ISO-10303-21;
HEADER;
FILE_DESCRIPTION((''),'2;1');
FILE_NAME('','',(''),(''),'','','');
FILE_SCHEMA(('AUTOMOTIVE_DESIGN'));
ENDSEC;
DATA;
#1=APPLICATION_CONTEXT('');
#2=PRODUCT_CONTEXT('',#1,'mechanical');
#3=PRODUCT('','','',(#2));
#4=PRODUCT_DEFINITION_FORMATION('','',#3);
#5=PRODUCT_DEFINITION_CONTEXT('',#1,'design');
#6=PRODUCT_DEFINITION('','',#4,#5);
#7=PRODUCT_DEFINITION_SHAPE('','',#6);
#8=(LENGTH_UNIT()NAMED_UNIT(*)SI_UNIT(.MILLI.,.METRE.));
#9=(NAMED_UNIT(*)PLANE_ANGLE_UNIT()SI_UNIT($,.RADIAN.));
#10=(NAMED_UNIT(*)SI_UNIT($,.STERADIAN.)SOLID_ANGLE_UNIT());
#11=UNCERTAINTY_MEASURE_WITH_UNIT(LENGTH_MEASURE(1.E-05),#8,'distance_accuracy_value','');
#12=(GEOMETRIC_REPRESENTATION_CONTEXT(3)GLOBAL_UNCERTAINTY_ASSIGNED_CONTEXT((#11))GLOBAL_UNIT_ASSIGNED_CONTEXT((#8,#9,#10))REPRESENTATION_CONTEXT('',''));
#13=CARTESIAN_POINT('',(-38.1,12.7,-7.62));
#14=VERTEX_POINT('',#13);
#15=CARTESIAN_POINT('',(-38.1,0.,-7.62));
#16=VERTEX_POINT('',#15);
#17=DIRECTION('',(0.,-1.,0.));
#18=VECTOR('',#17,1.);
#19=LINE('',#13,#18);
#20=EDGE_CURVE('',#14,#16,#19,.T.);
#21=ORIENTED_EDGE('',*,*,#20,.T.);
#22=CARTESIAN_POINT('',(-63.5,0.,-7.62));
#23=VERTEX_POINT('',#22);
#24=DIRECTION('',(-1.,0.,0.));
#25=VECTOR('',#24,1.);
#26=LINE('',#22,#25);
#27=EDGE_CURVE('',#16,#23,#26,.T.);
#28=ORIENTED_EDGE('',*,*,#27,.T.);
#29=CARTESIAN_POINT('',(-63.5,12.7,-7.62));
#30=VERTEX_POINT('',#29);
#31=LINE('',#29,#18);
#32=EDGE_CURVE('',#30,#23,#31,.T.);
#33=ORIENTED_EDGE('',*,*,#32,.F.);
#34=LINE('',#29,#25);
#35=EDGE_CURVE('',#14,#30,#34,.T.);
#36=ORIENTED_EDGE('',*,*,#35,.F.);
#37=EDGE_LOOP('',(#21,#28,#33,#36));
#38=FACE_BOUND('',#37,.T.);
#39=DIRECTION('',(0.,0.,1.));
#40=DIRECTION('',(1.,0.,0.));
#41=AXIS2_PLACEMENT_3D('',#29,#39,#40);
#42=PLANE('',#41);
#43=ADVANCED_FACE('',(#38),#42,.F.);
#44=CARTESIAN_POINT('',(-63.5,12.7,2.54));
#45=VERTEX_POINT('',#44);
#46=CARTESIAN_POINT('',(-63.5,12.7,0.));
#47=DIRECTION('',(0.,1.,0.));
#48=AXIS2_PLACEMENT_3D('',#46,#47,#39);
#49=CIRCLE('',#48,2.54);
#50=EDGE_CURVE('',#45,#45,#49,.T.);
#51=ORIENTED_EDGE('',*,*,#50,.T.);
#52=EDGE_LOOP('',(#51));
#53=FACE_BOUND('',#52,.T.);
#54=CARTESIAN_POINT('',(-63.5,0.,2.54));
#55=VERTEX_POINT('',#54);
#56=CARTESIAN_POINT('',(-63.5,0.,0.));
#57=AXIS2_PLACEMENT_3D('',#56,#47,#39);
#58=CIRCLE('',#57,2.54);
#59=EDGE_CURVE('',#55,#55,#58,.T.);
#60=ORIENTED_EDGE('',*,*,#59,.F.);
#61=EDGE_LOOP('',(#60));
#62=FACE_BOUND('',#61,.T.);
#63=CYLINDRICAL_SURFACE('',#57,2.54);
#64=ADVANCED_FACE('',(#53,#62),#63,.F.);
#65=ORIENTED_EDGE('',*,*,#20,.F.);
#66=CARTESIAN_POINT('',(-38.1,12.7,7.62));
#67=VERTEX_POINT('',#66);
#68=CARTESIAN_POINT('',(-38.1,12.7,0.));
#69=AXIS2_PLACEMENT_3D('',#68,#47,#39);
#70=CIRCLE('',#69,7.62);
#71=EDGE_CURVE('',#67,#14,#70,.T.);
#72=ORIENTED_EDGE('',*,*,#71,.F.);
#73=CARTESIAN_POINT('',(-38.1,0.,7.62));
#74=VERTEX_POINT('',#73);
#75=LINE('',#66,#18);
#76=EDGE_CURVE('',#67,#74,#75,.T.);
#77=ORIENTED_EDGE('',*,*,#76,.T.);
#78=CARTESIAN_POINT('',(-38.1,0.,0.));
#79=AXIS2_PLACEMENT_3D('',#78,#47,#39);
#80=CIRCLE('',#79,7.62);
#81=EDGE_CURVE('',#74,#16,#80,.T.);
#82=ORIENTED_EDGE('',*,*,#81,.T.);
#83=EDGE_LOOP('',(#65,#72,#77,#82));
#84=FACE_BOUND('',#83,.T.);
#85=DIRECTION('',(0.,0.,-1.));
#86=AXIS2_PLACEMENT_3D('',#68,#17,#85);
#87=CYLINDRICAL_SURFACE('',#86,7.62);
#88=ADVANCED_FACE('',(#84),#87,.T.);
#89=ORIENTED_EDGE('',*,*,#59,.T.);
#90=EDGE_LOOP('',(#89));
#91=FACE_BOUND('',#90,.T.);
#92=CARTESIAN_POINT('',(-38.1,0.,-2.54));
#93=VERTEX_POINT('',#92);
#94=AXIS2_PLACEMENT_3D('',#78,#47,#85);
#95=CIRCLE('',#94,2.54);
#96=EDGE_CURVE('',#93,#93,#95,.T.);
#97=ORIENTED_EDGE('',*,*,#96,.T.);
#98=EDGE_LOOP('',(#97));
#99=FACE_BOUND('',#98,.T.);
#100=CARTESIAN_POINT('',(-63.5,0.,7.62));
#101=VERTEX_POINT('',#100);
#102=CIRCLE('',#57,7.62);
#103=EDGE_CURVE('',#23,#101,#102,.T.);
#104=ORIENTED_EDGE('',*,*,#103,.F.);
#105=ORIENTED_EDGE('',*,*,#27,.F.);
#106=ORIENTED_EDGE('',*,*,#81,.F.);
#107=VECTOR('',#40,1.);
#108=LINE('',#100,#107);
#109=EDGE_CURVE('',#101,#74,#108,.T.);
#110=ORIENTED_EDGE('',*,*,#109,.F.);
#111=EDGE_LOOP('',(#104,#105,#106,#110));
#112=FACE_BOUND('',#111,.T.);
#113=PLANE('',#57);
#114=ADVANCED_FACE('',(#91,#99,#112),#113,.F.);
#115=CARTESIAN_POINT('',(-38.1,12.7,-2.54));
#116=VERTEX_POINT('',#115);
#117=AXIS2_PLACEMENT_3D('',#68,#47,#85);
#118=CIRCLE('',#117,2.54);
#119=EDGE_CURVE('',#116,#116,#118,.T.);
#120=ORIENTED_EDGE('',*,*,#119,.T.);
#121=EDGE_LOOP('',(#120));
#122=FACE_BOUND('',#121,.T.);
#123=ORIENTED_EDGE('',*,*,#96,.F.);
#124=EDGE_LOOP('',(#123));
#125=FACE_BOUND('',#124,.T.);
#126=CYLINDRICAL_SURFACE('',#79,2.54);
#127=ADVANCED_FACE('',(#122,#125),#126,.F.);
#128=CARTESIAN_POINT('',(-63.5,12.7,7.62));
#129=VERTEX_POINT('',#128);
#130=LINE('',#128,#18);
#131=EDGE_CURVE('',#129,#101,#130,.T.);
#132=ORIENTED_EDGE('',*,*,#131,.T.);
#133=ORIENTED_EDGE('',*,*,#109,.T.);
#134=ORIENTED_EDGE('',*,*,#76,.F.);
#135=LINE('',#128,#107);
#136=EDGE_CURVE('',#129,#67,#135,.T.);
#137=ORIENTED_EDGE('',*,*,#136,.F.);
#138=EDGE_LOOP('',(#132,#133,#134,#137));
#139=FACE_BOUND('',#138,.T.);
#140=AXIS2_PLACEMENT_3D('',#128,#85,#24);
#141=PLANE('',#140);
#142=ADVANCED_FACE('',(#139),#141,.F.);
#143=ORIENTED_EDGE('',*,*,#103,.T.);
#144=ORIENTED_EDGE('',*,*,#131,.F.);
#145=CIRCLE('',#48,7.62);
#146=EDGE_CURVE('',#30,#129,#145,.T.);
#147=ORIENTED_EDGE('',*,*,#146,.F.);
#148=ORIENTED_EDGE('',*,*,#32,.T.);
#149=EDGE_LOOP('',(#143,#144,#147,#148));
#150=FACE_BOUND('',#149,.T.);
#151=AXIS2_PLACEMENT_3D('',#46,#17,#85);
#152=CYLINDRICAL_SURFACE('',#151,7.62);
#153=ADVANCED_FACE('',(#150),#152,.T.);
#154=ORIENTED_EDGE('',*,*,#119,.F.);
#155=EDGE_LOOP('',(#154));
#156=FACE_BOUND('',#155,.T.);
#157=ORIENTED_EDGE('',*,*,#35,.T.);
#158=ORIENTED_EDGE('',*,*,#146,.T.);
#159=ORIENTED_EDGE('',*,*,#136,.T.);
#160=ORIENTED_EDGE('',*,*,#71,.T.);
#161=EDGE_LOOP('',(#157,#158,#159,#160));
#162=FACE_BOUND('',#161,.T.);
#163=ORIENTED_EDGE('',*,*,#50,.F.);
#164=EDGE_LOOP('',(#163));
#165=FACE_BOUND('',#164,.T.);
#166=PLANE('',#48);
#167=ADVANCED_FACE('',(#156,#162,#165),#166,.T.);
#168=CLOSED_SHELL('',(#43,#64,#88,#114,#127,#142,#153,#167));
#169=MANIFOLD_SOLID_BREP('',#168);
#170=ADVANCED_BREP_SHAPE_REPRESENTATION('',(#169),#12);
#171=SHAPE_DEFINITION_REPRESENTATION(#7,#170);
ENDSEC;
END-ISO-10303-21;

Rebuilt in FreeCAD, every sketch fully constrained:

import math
import FreeCAD as App
import Part
import Sketcher
Q = App.Units.Quantity

doc = App.newDocument("Part")
body = doc.addObject("PartDesign::Body", "Body")

# Sketch on XZ plane
sketch1 = body.newObject("Sketcher::SketchObject", "Sketch")
sketch1.AttachmentSupport = (doc.getObject("XZ_Plane"), [""])
sketch1.MapMode = "FlatFace"
sketch1.addGeometry([
    Part.LineSegment(App.Vector(-38, -8, 0), App.Vector(-64, -8, 0)),
    Part.ArcOfCircle(Part.Circle(App.Vector(-64, 0, 0), App.Vector(0, 0, 1), 8), math.radians(90), math.radians(270)),
    Part.LineSegment(App.Vector(-64, 8, 0), App.Vector(-38, 8, 0)),
    Part.ArcOfCircle(Part.Circle(App.Vector(-38, 0, 0), App.Vector(0, 0, 1), 8), math.radians(-90), math.radians(90)),
], False)
sketch1.addConstraint([
    Sketcher.Constraint("Tangent", 0, 2, 1, 2),
    Sketcher.Constraint("Tangent", 1, 1, 2, 1),
    Sketcher.Constraint("Tangent", 2, 2, 3, 2),
    Sketcher.Constraint("Tangent", 3, 1, 0, 1),
    Sketcher.Constraint("Horizontal", 0),
    Sketcher.Constraint("Horizontal", 2),
    Sketcher.Constraint("PointOnObject", 1, 3, -1),
    Sketcher.Constraint("Radius", 1, Q("0.3 in")),
    Sketcher.Constraint("DistanceX", 0, 2, 0, 1, Q("1 in")),
    Sketcher.Constraint("DistanceX", 1, 3, -1, 1, Q("2.5 in")),
])
pad1 = body.newObject("PartDesign::Pad", "Pad")
pad1.Profile = sketch1
pad1.Length = Q("0.5 in")
pad1.Reversed = True

# Sketch on XZ plane
sketch2 = body.newObject("Sketcher::SketchObject", "Sketch001")
sketch2.AttachmentSupport = (doc.getObject("XZ_Plane"), [""])
sketch2.MapMode = "FlatFace"
sketch2.AttachmentOffset = App.Placement(App.Vector(0, 0, -0.5 * 25.4), App.Rotation())
sketch2.addGeometry([
    Part.Circle(App.Vector(-63.5, 0, 0), App.Vector(0, 0, 1), 2.5),
    Part.Circle(App.Vector(-38.1, 0, 0), App.Vector(0, 0, 1), 2.5),
], False)
sketch2.addConstraint([
    Sketcher.Constraint("Equal", 0, 1),
    Sketcher.Constraint("PointOnObject", 0, 3, -1),
    Sketcher.Constraint("PointOnObject", 1, 3, -1),
    Sketcher.Constraint("Diameter", 0, Q("0.2 in")),
    Sketcher.Constraint("DistanceX", 0, 3, 1, 3, Q("1 in")),
    Sketcher.Constraint("DistanceX", 0, 3, -1, 1, Q("2.5 in")),
])
pocket1 = body.newObject("PartDesign::Pocket", "Pocket")
pocket1.Profile = sketch2
pocket1.Type = "ThroughAll"
pocket1.Reversed = True

doc.recompute()
